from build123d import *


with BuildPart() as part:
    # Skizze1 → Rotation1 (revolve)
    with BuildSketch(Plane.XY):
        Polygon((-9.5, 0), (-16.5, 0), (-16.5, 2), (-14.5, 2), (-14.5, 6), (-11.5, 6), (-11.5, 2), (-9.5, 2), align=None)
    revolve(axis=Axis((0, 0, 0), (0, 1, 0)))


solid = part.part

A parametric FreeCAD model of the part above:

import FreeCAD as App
import Part
import Sketcher

doc = App.newDocument("Part")
params = doc.addObject("Spreadsheet::Sheet", "Params")
for row, (alias, value) in enumerate([
    ("sketch1_width", "7 mm"),
    ("sketch1_width2", "2 mm"),
    ("sketch1_height", "4 mm"),
    ("revolution_angle", "360 deg"),
], start=1):
    params.set(f"A{row}", alias)
    params.set(f"B{row}", "=" + value)
    params.setAlias(f"B{row}", alias)

body = doc.addObject("PartDesign::Body", "Body")

# Sketch on XY plane
sketch1 = doc.addObject("Sketcher::SketchObject", "Sketch")
body.addObject(sketch1)
sketch1.AttachmentSupport = (doc.XY_Plane, [""])
sketch1.MapMode = "FlatFace"
sketch1.addGeometry(Part.LineSegment(App.Vector(-16.5, 0, 0), App.Vector(-9.5, 0, 0)), False)
sketch1.addGeometry(Part.LineSegment(App.Vector(-9.5, 0, 0), App.Vector(-9.5, 2, 0)), False)
sketch1.addGeometry(Part.LineSegment(App.Vector(-9.5, 2, 0), App.Vector(-11.5, 2, 0)), False)
sketch1.addGeometry(Part.LineSegment(App.Vector(-11.5, 2, 0), App.Vector(-11.5, 6, 0)), False)
sketch1.addGeometry(Part.LineSegment(App.Vector(-11.5, 6, 0), App.Vector(-14.5, 6, 0)), False)
sketch1.addGeometry(Part.LineSegment(App.Vector(-14.5, 6, 0), App.Vector(-14.5, 2, 0)), False)
sketch1.addGeometry(Part.LineSegment(App.Vector(-14.5, 2, 0), App.Vector(-16.5, 2, 0)), False)
sketch1.addGeometry(Part.LineSegment(App.Vector(-16.5, 2, 0), App.Vector(-16.5, 0, 0)), False)
sketch1.addConstraint(Sketcher.Constraint("Coincident", 0, 2, 1, 1))
sketch1.addConstraint(Sketcher.Constraint("Coincident", 1, 2, 2, 1))
sketch1.addConstraint(Sketcher.Constraint("Coincident", 2, 2, 3, 1))
sketch1.addConstraint(Sketcher.Constraint("Coincident", 3, 2, 4, 1))
sketch1.addConstraint(Sketcher.Constraint("Coincident", 4, 2, 5, 1))
sketch1.addConstraint(Sketcher.Constraint("Coincident", 5, 2, 6, 1))
sketch1.addConstraint(Sketcher.Constraint("Coincident", 6, 2, 7, 1))
sketch1.addConstraint(Sketcher.Constraint("Coincident", 7, 2, 0, 1))
sketch1.addConstraint(Sketcher.Constraint("Horizontal", 0))
sketch1.addConstraint(Sketcher.Constraint("Vertical", 1))
sketch1.addConstraint(Sketcher.Constraint("Horizontal", 2))
sketch1.addConstraint(Sketcher.Constraint("Vertical", 3))
sketch1.addConstraint(Sketcher.Constraint("Horizontal", 4))
sketch1.addConstraint(Sketcher.Constraint("Vertical", 5))
sketch1.addConstraint(Sketcher.Constraint("Horizontal", 6))
sketch1.addConstraint(Sketcher.Constraint("Vertical", 7))
sketch1.addConstraint(Sketcher.Constraint("PointOnObject", 0, 2, -1))
sketch1.addConstraint(Sketcher.Constraint("Horizontal", 2, 2, 5, 2))
sketch1.addConstraint(Sketcher.Constraint("Equal", 2, 6))
sketch1.addConstraint(Sketcher.Constraint("Equal", 6, 1))
sketch1.addConstraint(Sketcher.Constraint("DistanceX", 0, 1, 0, 2, 7.0))
sketch1.addConstraint(Sketcher.Constraint("DistanceX", 2, 2, 2, 1, 2.0))
sketch1.addConstraint(Sketcher.Constraint("DistanceY", 3, 1, 3, 2, 4.0))
sketch1.addConstraint(Sketcher.Constraint("DistanceX", 0, 2, -1, 1, 9.5))
sketch1.setExpression("Constraints[20]", "Params.sketch1_width")
sketch1.setExpression("Constraints[21]", "Params.sketch1_width2")
sketch1.setExpression("Constraints[22]", "Params.sketch1_height")
revolution = doc.addObject("PartDesign::Revolution", "Revolution")
body.addObject(revolution)
revolution.Profile = sketch1
revolution.ReferenceAxis = (sketch1, ["V_Axis"])
revolution.setExpression("Angle", "Params.revolution_angle")

doc.recompute()
